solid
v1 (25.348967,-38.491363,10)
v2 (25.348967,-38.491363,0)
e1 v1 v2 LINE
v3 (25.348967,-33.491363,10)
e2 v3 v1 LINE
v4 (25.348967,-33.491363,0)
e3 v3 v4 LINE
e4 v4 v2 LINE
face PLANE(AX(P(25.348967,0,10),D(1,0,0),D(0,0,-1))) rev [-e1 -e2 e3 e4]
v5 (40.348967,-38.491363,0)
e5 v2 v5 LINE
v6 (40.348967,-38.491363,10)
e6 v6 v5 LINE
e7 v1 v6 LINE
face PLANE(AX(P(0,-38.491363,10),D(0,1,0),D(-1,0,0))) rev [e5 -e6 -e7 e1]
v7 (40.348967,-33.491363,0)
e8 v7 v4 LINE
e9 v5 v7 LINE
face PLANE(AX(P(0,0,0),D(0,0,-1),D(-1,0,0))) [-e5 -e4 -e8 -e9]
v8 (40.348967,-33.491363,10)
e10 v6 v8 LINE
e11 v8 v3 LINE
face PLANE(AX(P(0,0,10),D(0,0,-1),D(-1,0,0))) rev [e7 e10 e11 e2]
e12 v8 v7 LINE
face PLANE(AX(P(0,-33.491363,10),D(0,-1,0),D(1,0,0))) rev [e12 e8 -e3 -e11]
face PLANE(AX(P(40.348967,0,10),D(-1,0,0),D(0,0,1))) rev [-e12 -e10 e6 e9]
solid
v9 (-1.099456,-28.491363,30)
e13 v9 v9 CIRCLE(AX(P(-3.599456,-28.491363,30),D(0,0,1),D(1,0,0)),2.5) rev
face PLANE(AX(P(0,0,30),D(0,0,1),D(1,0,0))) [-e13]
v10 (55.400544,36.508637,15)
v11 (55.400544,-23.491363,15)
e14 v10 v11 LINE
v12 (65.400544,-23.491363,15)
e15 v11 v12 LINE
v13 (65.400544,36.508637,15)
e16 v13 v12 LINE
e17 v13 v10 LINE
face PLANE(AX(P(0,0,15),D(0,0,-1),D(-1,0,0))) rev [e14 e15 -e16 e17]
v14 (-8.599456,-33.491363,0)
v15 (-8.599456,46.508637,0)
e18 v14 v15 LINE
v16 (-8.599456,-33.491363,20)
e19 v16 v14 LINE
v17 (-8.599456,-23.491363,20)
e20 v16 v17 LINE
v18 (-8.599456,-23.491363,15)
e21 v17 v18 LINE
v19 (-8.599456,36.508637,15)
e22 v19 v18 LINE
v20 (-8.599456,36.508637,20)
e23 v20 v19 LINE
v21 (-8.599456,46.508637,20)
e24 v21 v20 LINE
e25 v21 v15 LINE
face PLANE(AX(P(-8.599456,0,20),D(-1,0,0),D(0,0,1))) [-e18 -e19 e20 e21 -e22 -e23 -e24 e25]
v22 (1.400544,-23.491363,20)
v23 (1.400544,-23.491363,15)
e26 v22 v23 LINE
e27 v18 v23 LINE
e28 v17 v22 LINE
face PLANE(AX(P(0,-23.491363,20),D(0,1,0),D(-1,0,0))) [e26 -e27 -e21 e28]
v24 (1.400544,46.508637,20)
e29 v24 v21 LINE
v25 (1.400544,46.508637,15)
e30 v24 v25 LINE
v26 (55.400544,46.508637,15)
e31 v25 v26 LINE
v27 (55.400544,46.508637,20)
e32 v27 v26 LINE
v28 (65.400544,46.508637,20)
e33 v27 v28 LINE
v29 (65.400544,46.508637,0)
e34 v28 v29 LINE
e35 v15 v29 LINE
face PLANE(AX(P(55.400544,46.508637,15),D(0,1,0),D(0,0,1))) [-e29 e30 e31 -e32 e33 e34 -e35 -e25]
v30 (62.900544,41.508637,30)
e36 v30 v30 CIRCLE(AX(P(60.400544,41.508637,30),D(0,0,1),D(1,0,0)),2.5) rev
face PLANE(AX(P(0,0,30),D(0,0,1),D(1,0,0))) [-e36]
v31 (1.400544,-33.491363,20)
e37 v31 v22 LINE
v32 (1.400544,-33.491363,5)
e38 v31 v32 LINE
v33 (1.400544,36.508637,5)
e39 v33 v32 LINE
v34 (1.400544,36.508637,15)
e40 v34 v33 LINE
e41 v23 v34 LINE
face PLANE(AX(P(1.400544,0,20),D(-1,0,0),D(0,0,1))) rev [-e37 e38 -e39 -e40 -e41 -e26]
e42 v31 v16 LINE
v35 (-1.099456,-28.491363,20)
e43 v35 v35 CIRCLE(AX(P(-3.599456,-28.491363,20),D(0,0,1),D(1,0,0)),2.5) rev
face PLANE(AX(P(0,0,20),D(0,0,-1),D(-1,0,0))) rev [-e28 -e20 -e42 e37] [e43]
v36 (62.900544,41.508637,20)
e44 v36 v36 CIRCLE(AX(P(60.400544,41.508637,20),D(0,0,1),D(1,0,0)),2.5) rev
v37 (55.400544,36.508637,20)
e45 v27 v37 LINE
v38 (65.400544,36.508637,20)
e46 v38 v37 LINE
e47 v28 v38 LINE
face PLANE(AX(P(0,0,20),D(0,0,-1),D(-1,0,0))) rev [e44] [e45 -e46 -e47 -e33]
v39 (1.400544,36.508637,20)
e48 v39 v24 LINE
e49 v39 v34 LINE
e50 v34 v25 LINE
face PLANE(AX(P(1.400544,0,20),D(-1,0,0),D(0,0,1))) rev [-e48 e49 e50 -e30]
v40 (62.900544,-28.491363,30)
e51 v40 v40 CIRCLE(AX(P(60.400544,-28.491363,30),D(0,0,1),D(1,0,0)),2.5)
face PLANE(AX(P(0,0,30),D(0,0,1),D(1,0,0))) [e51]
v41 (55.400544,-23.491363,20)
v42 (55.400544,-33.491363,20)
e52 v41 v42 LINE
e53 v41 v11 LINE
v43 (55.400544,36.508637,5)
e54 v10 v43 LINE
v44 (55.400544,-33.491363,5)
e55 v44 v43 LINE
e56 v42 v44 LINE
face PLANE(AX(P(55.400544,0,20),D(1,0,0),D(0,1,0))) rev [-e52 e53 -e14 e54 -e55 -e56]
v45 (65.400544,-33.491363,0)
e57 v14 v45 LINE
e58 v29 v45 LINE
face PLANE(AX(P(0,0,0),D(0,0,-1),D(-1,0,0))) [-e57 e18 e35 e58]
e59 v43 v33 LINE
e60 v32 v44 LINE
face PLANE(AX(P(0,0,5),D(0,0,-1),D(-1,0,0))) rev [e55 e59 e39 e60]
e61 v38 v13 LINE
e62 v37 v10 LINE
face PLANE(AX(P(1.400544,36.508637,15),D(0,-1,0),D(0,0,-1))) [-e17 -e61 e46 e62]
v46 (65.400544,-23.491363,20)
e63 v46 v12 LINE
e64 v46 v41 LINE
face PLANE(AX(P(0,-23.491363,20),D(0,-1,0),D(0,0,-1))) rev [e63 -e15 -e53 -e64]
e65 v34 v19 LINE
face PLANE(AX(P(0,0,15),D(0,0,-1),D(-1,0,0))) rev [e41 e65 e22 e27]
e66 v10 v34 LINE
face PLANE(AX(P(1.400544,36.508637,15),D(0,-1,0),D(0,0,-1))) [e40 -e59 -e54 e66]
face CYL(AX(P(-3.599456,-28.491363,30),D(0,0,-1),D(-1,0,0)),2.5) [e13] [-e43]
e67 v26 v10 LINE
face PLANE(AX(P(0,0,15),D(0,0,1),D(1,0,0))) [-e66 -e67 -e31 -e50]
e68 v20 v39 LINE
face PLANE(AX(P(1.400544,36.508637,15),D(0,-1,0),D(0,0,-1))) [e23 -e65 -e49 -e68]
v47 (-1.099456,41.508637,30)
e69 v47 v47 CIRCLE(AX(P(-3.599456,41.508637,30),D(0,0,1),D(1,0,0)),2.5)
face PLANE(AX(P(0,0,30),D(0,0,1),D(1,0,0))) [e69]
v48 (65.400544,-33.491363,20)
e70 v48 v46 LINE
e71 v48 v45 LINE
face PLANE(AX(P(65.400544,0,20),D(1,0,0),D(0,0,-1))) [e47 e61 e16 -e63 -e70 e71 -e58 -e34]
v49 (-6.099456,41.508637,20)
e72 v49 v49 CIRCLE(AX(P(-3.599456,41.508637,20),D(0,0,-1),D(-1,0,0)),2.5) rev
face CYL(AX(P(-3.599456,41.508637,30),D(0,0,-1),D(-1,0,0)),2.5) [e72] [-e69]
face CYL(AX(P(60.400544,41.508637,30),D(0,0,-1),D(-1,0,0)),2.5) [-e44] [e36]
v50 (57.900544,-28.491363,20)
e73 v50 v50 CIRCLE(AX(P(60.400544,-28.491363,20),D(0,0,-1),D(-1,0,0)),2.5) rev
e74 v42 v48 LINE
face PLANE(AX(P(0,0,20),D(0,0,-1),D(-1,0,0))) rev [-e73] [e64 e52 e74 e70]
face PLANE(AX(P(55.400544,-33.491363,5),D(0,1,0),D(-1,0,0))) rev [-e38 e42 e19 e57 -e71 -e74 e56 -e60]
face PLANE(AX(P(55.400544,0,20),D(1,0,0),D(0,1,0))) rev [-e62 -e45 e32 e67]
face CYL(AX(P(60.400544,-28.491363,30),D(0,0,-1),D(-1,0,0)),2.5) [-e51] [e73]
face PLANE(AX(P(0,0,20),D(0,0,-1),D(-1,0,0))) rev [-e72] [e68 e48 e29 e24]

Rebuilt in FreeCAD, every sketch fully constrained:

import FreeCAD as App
import Part
import Sketcher
from FreeCAD import Vector


def add_polygon(sketch, points):
    """Adds a closed chain of lines whose ends are joined by coincident constraints."""
    first, n = sketch.GeometryCount, len(points)
    for a, b in zip(points, points[1:] + points[:1]):
        sketch.addGeometry(Part.LineSegment(App.Vector(*a, 0), App.Vector(*b, 0)), False)
    for i in range(n):
        sketch.addConstraint(Sketcher.Constraint("Coincident", first + i, 2, first + (i + 1) % n, 1))

doc = App.newDocument("Part")
body = doc.addObject("PartDesign::Body", "Body")

# Sketch on XY plane
sketch1 = body.newObject("Sketcher::SketchObject", "Sketch")
sketch1.AttachmentSupport = (doc.getObject("XY_Plane"), [""])
sketch1.MapMode = "FlatFace"
add_polygon(sketch1, [(1.400544, 36.508637), (1.400544, -33.491363), (55.400544, -33.491363), (55.400544, 36.508637)])  # lines 0-3
sketch1.addConstraint(Sketcher.Constraint("Vertical", 0))
sketch1.addConstraint(Sketcher.Constraint("Horizontal", 1))
sketch1.addConstraint(Sketcher.Constraint("Vertical", 2))
sketch1.addConstraint(Sketcher.Constraint("Horizontal", 3))
sketch1.addConstraint(Sketcher.Constraint("DistanceX", 1, 1, 1, 2, 54.0))
sketch1.addConstraint(Sketcher.Constraint("DistanceY", 0, 2, 0, 1, 70.0))
sketch1.addConstraint(Sketcher.Constraint("DistanceX", -1, 1, 0, 2, 1.400544))
sketch1.addConstraint(Sketcher.Constraint("DistanceY", 0, 2, -1, 1, 33.491363))
pad1 = body.newObject("PartDesign::Pad", "Pad")
pad1.Profile = sketch1
pad1.Length = 5

# Sketch on XY plane
sketch2 = body.newObject("Sketcher::SketchObject", "Sketch001")
sketch2.AttachmentSupport = (doc.getObject("XY_Plane"), [""])
sketch2.MapMode = "FlatFace"
add_polygon(sketch2, [(55.400544, 46.508637), (55.400544, 36.508637), (1.400544, 36.508637), (1.400544, 46.508637)])  # lines 0-3
sketch2.addConstraint(Sketcher.Constraint("Vertical", 0))
sketch2.addConstraint(Sketcher.Constraint("Horizontal", 1))
sketch2.addConstraint(Sketcher.Constraint("Vertical", 2))
sketch2.addConstraint(Sketcher.Constraint("Horizontal", 3))
sketch2.addConstraint(Sketcher.Constraint("DistanceX", 1, 2, 1, 1, 54.0))
sketch2.addConstraint(Sketcher.Constraint("DistanceY", 0, 2, 0, 1, 10.0))
sketch2.addConstraint(Sketcher.Constraint("DistanceX", -1, 1, 0, 2, 55.400544))
sketch2.addConstraint(Sketcher.Constraint("DistanceY", -1, 1, 0, 2, 36.508637))
pad2 = body.newObject("PartDesign::Pad", "Pad001")
pad2.Profile = sketch2
pad2.Length = 15

# Sketch on XY plane
sketch3 = body.newObject("Sketcher::SketchObject", "Sketch002")
sketch3.AttachmentSupport = (doc.getObject("XY_Plane"), [""])
sketch3.MapMode = "FlatFace"
add_polygon(sketch3, [(65.400544, 46.508637), (65.400544, 36.508637), (55.400544, 36.508637), (55.400544, 46.508637)])  # lines 0-3
add_polygon(sketch3, [(65.400544, -23.491363), (65.400544, -33.491363), (55.400544, -33.491363), (55.400544, -23.491363)])  # lines 4-7
add_polygon(sketch3, [(1.400544, -23.491363), (1.400544, -33.491363), (-8.599456, -33.491363), (-8.599456, -23.491363)])  # lines 8-11
add_polygon(sketch3, [(1.400544, 46.508637), (1.400544, 36.508637), (-8.599456, 36.508637), (-8.599456, 46.508637)])  # lines 12-15
sketch3.addConstraint(Sketcher.Constraint("Vertical", 0))
sketch3.addConstraint(Sketcher.Constraint("Horizontal", 1))
sketch3.addConstraint(Sketcher.Constraint("Vertical", 2))
sketch3.addConstraint(Sketcher.Constraint("Horizontal", 3))
sketch3.addConstraint(Sketcher.Constraint("Vertical", 4))
sketch3.addConstraint(Sketcher.Constraint("Horizontal", 5))
sketch3.addConstraint(Sketcher.Constraint("Vertical", 6))
sketch3.addConstraint(Sketcher.Constraint("Horizontal", 7))
sketch3.addConstraint(Sketcher.Constraint("Vertical", 8))
sketch3.addConstraint(Sketcher.Constraint("Horizontal", 9))
sketch3.addConstraint(Sketcher.Constraint("Vertical", 10))
sketch3.addConstraint(Sketcher.Constraint("Horizontal", 11))
sketch3.addConstraint(Sketcher.Constraint("Vertical", 12))
sketch3.addConstraint(Sketcher.Constraint("Horizontal", 13))
sketch3.addConstraint(Sketcher.Constraint("Vertical", 14))
sketch3.addConstraint(Sketcher.Constraint("Horizontal", 15))
sketch3.addConstraint(Sketcher.Constraint("Horizontal", 5, 2, 8, 2))
sketch3.addConstraint(Sketcher.Constraint("Horizontal", 7, 2, 10, 2))
sketch3.addConstraint(Sketcher.Constraint("Horizontal", 1, 2, 12, 2))
sketch3.addConstraint(Sketcher.Constraint("Horizontal", 3, 2, 14, 2))
sketch3.addConstraint(Sketcher.Constraint("Vertical", 3, 2, 4, 2))
sketch3.addConstraint(Sketcher.Constraint("Vertical", 2, 2, 5, 2))
sketch3.addConstraint(Sketcher.Constraint("Vertical", 11, 2, 12, 2))
sketch3.addConstraint(Sketcher.Constraint("Vertical", 10, 2, 13, 2))
sketch3.addConstraint(Sketcher.Constraint("Equal", 7, 9))
sketch3.addConstraint(Sketcher.Constraint("Equal", 15, 0))
sketch3.addConstraint(Sketcher.Constraint("Equal", 2, 4))
sketch3.addConstraint(Sketcher.Constraint("DistanceX", 1, 2, 1, 1, 10.0))
sketch3.addConstraint(Sketcher.Constraint("DistanceY", 4, 2, 0, 2, 70.0))
sketch3.addConstraint(Sketcher.Constraint("DistanceX", 8, 2, 5, 2, 54.0))
sketch3.addConstraint(Sketcher.Constraint("DistanceX", -1, 1, 0, 2, 65.400544))
sketch3.addConstraint(Sketcher.Constraint("DistanceY", -1, 1, 0, 2, 36.508637))
pad3 = body.newObject("PartDesign::Pad", "Pad002")
pad3.Profile = sketch3
pad3.Length = 20

# Sketch on XY plane
sketch4 = body.newObject("Sketcher::SketchObject", "Sketch003")
sketch4.AttachmentSupport = (doc.getObject("XY_Plane"), [""])
sketch4.MapMode = "FlatFace"
add_polygon(sketch4, [(65.400544, 36.508637), (65.400544, -23.491363), (55.400544, -23.491363), (55.400544, 36.508637)])  # lines 0-3
add_polygon(sketch4, [(1.400544, 36.508637), (1.400544, -23.491363), (-8.599456, -23.491363), (-8.599456, 36.508637)])  # lines 4-7
sketch4.addConstraint(Sketcher.Constraint("Vertical", 0))
sketch4.addConstraint(Sketcher.Constraint("Horizontal", 1))
sketch4.addConstraint(Sketcher.Constraint("Vertical", 2))
sketch4.addConstraint(Sketcher.Constraint("Horizontal", 3))
sketch4.addConstraint(Sketcher.Constraint("Vertical", 4))
sketch4.addConstraint(Sketcher.Constraint("Horizontal", 5))
sketch4.addConstraint(Sketcher.Constraint("Vertical", 6))
sketch4.addConstraint(Sketcher.Constraint("Horizontal", 7))
sketch4.addConstraint(Sketcher.Constraint("Horizontal", 1, 2, 4, 2))
sketch4.addConstraint(Sketcher.Constraint("Horizontal", 3, 2, 6, 2))
sketch4.addConstraint(Sketcher.Constraint("Equal", 3, 5))
sketch4.addConstraint(Sketcher.Constraint("DistanceX", 1, 2, 1, 1, 10.0))
sketch4.addConstraint(Sketcher.Constraint("DistanceY", 0, 2, 0, 1, 60.0))
sketch4.addConstraint(Sketcher.Constraint("DistanceX", 4, 2, 1, 2, 54.0))
sketch4.addConstraint(Sketcher.Constraint("DistanceX", -1, 1, 0, 2, 65.400544))
sketch4.addConstraint(Sketcher.Constraint("DistanceY", 0, 2, -1, 1, 23.491363))
pad4 = body.newObject("PartDesign::Pad", "Pad003")
pad4.Profile = sketch4
pad4.Length = 15

# Sketch on XY plane
sketch5 = body.newObject("Sketcher::SketchObject", "Sketch004")
sketch5.AttachmentSupport = (doc.getObject("XY_Plane"), [""])
sketch5.MapMode = "FlatFace"
sketch5.AttachmentOffset = App.Placement(Vector(0, 0, 20), App.Rotation())
sketch5.addGeometry(Part.Circle(Vector(-3.599456, 41.508637, 0), Vector(0, 0, 1), 2.5), False)
sketch5.addGeometry(Part.Circle(Vector(60.400544, 41.508637, 0), Vector(0, 0, 1), 2.5), False)
sketch5.addGeometry(Part.Circle(Vector(60.400544, -28.491363, 0), Vector(0, 0, 1), 2.5), False)
sketch5.addGeometry(Part.Circle(Vector(-3.599456, -28.491363, 0), Vector(0, 0, 1), 2.5), False)
sketch5.addConstraint(Sketcher.Constraint("Equal", 0, 1))
sketch5.addConstraint(Sketcher.Constraint("Equal", 1, 2))
sketch5.addConstraint(Sketcher.Constraint("Equal", 2, 3))
sketch5.addConstraint(Sketcher.Constraint("Horizontal", 0, 3, 1, 3))
sketch5.addConstraint(Sketcher.Constraint("Horizontal", 2, 3, 3, 3))
sketch5.addConstraint(Sketcher.Constraint("Vertical", 1, 3, 2, 3))
sketch5.addConstraint(Sketcher.Constraint("Vertical", 0, 3, 3, 3))
sketch5.addConstraint(Sketcher.Constraint("Diameter", 0, 5.0))
sketch5.addConstraint(Sketcher.Constraint("DistanceX", 0, 3, 1, 3, 64.0))
sketch5.addConstraint(Sketcher.Constraint("DistanceY", 2, 3, 1, 3, 70.0))
sketch5.addConstraint(Sketcher.Constraint("DistanceX", 0, 3, -1, 1, 3.599456))
sketch5.addConstraint(Sketcher.Constraint("DistanceY", -1, 1, 0, 3, 41.508637))
pad5 = body.newObject("PartDesign::Pad", "Pad004")
pad5.Profile = sketch5
pad5.Length = 10
body2 = doc.addObject("PartDesign::Body", "Body001")

# Sketch on XY plane
sketch6 = body2.newObject("Sketcher::SketchObject", "Sketch005")
sketch6.AttachmentSupport = (doc.getObject("XY_Plane001"), [""])
sketch6.MapMode = "FlatFace"
add_polygon(sketch6, [(40.348967, -33.491363), (40.348967, -38.491363), (25.348967, -38.491363), (25.348967, -33.491363)])  # lines 0-3
sketch6.addConstraint(Sketcher.Constraint("Vertical", 0))
sketch6.addConstraint(Sketcher.Constraint("Horizontal", 1))
sketch6.addConstraint(Sketcher.Constraint("Vertical", 2))
sketch6.addConstraint(Sketcher.Constraint("Horizontal", 3))
sketch6.addConstraint(Sketcher.Constraint("DistanceX", 1, 2, 1, 1, 15.0))
sketch6.addConstraint(Sketcher.Constraint("DistanceY", 0, 2, 0, 1, 5.0))
sketch6.addConstraint(Sketcher.Constraint("DistanceX", -1, 1, 0, 2, 40.348967))
sketch6.addConstraint(Sketcher.Constraint("DistanceY", 0, 2, -1, 1, 38.491363))
pad6 = body2.newObject("PartDesign::Pad", "Pad005")
pad6.Profile = sketch6
pad6.Length = 10

doc.recompute()
